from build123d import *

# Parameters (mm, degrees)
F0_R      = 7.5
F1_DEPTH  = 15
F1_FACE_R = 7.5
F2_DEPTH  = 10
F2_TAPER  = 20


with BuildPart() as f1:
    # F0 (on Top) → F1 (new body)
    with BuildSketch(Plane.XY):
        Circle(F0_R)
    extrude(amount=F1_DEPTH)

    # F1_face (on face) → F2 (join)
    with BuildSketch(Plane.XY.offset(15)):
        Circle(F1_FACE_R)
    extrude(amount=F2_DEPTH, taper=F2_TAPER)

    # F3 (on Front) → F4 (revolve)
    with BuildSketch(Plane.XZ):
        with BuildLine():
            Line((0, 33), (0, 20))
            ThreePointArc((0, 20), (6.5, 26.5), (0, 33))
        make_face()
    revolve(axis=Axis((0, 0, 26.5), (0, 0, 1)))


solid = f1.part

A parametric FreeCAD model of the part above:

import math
import FreeCAD as App
import Part
import Sketcher

V = App.Vector

doc = App.newDocument("Part")
body = doc.addObject("PartDesign::Body", "Body")

# Sketch on XY plane
sketch1 = body.newObject("Sketcher::SketchObject", "Sketch")
sketch1.AttachmentSupport = (doc.getObject("XY_Plane"), [""])
sketch1.MapMode = "FlatFace"
sketch1.addGeometry(Part.Circle(V(0, 0, 0), V(0, 0, 1), 8), False)
sketch1.addConstraint([
    Sketcher.Constraint("Coincident", 0, 3, -1, 1),
    Sketcher.Constraint("Diameter", 0, 15.0),
])
pad1 = body.newObject("PartDesign::Pad", "Pad")
pad1.Profile = sketch1
pad1.Length = 15

# Sketch on XY plane
sketch2 = body.newObject("Sketcher::SketchObject", "Sketch001")
sketch2.AttachmentSupport = (doc.getObject("XY_Plane"), [""])
sketch2.MapMode = "FlatFace"
sketch2.AttachmentOffset = App.Placement(V(0, 0, 15), App.Rotation())
sketch2.addGeometry(Part.Circle(V(0, 0, 0), V(0, 0, 1), 8), False)
sketch2.addConstraint([
    Sketcher.Constraint("Coincident", 0, 3, -1, 1),
    Sketcher.Constraint("Diameter", 0, 15.0),
])
pad2 = body.newObject("PartDesign::Pad", "Pad001")
pad2.Profile = sketch2
pad2.Length = 10
pad2.TaperAngle = -20

# Sketch on XZ plane
sketch3 = body.newObject("Sketcher::SketchObject", "Sketch002")
sketch3.AttachmentSupport = (doc.getObject("XZ_Plane"), [""])
sketch3.MapMode = "FlatFace"
sketch3.addGeometry([
    Part.LineSegment(V(0, 33, 0), V(0, 20, 0)),
    Part.ArcOfCircle(Part.Circle(V(0, 26, 0), V(0, 0, 1), 6), math.radians(-90), math.radians(90)),
], False)
sketch3.addConstraint([
    Sketcher.Constraint("Coincident", 0, 1, 1, 2),
    Sketcher.Constraint("Coincident", 1, 1, 0, 2),
    Sketcher.Constraint("Vertical", 0),
    Sketcher.Constraint("PointOnObject", 1, 3, -2),
    Sketcher.Constraint("PointOnObject", 0, 1, -2),
    Sketcher.Constraint("Radius", 1, 6.5),
    Sketcher.Constraint("DistanceY", -1, 1, 0, 1, 33.0),
])
revolution = body.newObject("PartDesign::Revolution", "Revolution")
revolution.Profile = sketch3
revolution.ReferenceAxis = (sketch3, ["V_Axis"])
revolution.Angle = 360

doc.recompute()
